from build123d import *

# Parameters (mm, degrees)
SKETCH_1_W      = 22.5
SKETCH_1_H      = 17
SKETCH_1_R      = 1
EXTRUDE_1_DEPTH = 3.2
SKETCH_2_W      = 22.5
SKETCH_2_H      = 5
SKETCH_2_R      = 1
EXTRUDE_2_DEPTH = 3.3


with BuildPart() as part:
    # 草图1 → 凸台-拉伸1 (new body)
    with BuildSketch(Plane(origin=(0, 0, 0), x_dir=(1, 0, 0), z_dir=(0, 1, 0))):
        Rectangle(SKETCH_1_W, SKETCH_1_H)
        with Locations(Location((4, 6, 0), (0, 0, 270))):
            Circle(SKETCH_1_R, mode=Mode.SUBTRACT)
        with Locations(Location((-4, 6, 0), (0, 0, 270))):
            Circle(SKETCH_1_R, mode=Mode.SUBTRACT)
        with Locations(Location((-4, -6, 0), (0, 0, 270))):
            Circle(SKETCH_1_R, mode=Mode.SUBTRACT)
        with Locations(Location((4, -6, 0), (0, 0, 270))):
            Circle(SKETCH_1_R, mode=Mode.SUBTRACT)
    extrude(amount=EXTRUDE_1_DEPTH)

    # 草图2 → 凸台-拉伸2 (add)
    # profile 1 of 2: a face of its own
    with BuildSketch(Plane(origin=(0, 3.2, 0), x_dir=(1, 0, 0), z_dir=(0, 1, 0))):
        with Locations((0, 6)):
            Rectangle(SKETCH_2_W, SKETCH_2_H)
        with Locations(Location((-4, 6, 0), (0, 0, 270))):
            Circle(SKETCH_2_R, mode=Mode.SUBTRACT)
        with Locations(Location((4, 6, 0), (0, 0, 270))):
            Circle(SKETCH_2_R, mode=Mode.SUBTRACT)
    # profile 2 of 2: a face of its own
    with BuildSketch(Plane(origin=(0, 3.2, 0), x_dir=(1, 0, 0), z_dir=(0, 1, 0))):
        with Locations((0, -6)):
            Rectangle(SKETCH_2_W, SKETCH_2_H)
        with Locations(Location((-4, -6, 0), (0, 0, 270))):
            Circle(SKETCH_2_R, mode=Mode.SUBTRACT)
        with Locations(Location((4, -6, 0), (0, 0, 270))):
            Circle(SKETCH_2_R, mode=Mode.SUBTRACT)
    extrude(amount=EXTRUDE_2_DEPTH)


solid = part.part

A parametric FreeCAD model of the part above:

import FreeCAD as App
import Part
import Sketcher
from FreeCAD import Vector
Q = App.Units.Quantity


def add_polygon(sketch, points):
    """Adds a closed chain of lines whose ends are joined by coincident constraints."""
    first, n = sketch.GeometryCount, len(points)
    for a, b in zip(points, points[1:] + points[:1]):
        sketch.addGeometry(Part.LineSegment(App.Vector(*a, 0), App.Vector(*b, 0)), False)
    for i in range(n):
        sketch.addConstraint(Sketcher.Constraint("Coincident", first + i, 2, first + (i + 1) % n, 1))

doc = App.newDocument("Part")
body = doc.addObject("PartDesign::Body", "Body")

sketch1 = body.newObject("Sketcher::SketchObject", "Sketch")
sketch1.AttachmentSupport = (doc.getObject("XZ_Plane"), [""])
sketch1.MapMode = "FlatFace"
add_polygon(sketch1, [(-11.25, -8.5), (-11.25, 8.5), (11.25, 8.5), (11.25, -8.5)])
sketch1.addGeometry(Part.Circle(Vector(-4, 6, 0), Vector(0, 0, 1), 1), False)
sketch1.addGeometry(Part.Circle(Vector(4, 6, 0), Vector(0, 0, 1), 1), False)
sketch1.addGeometry(Part.Circle(Vector(-4, -6, 0), Vector(0, 0, 1), 1), False)
sketch1.addGeometry(Part.Circle(Vector(4, -6, 0), Vector(0, 0, 1), 1), False)
sketch1.addConstraint(Sketcher.Constraint("Vertical", 0))
sketch1.addConstraint(Sketcher.Constraint("Horizontal", 1))
sketch1.addConstraint(Sketcher.Constraint("Vertical", 2))
sketch1.addConstraint(Sketcher.Constraint("Horizontal", 3))
sketch1.addConstraint(Sketcher.Constraint("Equal", 4, 5))
sketch1.addConstraint(Sketcher.Constraint("Equal", 5, 6))
sketch1.addConstraint(Sketcher.Constraint("Equal", 6, 7))
sketch1.addConstraint(Sketcher.Constraint("Symmetric", 5, 3, 6, 3, -1, 1))
sketch1.addConstraint(Sketcher.Constraint("Symmetric", 4, 3, 7, 3, -1, 1))
sketch1.addConstraint(Sketcher.Constraint("Symmetric", 0, 2, 2, 2, -1, 1))
sketch1.addConstraint(Sketcher.Constraint("Symmetric", 4, 3, 5, 3, -2))
sketch1.addConstraint(Sketcher.Constraint("Diameter", 4, Q("2 mm")))
sketch1.addConstraint(Sketcher.Constraint("DistanceY", 0, 1, 0, 2, Q("17 mm")))
sketch1.addConstraint(Sketcher.Constraint("DistanceX", 1, 1, 1, 2, Q("22.5 mm")))
sketch1.addConstraint(Sketcher.Constraint("DistanceX", 4, 3, -1, 1, Q("4 mm")))
sketch1.addConstraint(Sketcher.Constraint("DistanceY", -1, 1, 4, 3, Q("6 mm")))
pad1 = body.newObject("PartDesign::Pad", "Pad")
pad1.Profile = sketch1
pad1.Length = 3.2
pad1.Reversed = True

sketch2 = body.newObject("Sketcher::SketchObject", "Sketch001")
sketch2.AttachmentSupport = (doc.getObject("XZ_Plane"), [""])
sketch2.MapMode = "FlatFace"
sketch2.AttachmentOffset = App.Placement(Vector(0, 0, -3.2), App.Rotation())
add_polygon(sketch2, [(-11.25, -8.5), (-11.25, -3.5), (11.25, -3.5), (11.25, -8.5)])
sketch2.addGeometry(Part.Circle(Vector(-4, -6, 0), Vector(0, 0, 1), 1), False)
sketch2.addGeometry(Part.Circle(Vector(4, -6, 0), Vector(0, 0, 1), 1), False)
add_polygon(sketch2, [(-11.25, 3.5), (-11.25, 8.5), (11.25, 8.5), (11.25, 3.5)])
sketch2.addGeometry(Part.Circle(Vector(-4, 6, 0), Vector(0, 0, 1), 1), False)
sketch2.addGeometry(Part.Circle(Vector(4, 6, 0), Vector(0, 0, 1), 1), False)
sketch2.addConstraint(Sketcher.Constraint("Vertical", 0))
sketch2.addConstraint(Sketcher.Constraint("Horizontal", 1))
sketch2.addConstraint(Sketcher.Constraint("Vertical", 2))
sketch2.addConstraint(Sketcher.Constraint("Horizontal", 3))
sketch2.addConstraint(Sketcher.Constraint("Vertical", 6))
sketch2.addConstraint(Sketcher.Constraint("Horizontal", 7))
sketch2.addConstraint(Sketcher.Constraint("Vertical", 8))
sketch2.addConstraint(Sketcher.Constraint("Horizontal", 9))
sketch2.addConstraint(Sketcher.Constraint("Equal", 4, 5))
sketch2.addConstraint(Sketcher.Constraint("Equal", 5, 10))
sketch2.addConstraint(Sketcher.Constraint("Equal", 10, 11))
sketch2.addConstraint(Sketcher.Constraint("Symmetric", 5, 3, 10, 3, -1, 1))
sketch2.addConstraint(Sketcher.Constraint("Symmetric", 4, 3, 11, 3, -1, 1))
sketch2.addConstraint(Sketcher.Constraint("Symmetric", 2, 2, 6, 2, -1, 1))
sketch2.addConstraint(Sketcher.Constraint("Symmetric", 0, 2, 8, 2, -1, 1))
sketch2.addConstraint(Sketcher.Constraint("Symmetric", 4, 3, 5, 3, -2))
sketch2.addConstraint(Sketcher.Constraint("Vertical", 3, 2, 6, 2))
sketch2.addConstraint(Sketcher.Constraint("Diameter", 4, Q("2 mm")))
sketch2.addConstraint(Sketcher.Constraint("DistanceY", 0, 1, 0, 2, Q("5 mm")))
sketch2.addConstraint(Sketcher.Constraint("DistanceX", 1, 1, 1, 2, Q("22.5 mm")))
sketch2.addConstraint(Sketcher.Constraint("DistanceX", 4, 3, -1, 1, Q("4 mm")))
sketch2.addConstraint(Sketcher.Constraint("DistanceY", 4, 3, -1, 1, Q("6 mm")))
sketch2.addConstraint(Sketcher.Constraint("DistanceY", 0, 2, 6, 2, Q("12 mm")))
pad2 = body.newObject("PartDesign::Pad", "Pad001")
pad2.Profile = sketch2
pad2.Length = 3.3
pad2.Reversed = True

doc.recompute()
